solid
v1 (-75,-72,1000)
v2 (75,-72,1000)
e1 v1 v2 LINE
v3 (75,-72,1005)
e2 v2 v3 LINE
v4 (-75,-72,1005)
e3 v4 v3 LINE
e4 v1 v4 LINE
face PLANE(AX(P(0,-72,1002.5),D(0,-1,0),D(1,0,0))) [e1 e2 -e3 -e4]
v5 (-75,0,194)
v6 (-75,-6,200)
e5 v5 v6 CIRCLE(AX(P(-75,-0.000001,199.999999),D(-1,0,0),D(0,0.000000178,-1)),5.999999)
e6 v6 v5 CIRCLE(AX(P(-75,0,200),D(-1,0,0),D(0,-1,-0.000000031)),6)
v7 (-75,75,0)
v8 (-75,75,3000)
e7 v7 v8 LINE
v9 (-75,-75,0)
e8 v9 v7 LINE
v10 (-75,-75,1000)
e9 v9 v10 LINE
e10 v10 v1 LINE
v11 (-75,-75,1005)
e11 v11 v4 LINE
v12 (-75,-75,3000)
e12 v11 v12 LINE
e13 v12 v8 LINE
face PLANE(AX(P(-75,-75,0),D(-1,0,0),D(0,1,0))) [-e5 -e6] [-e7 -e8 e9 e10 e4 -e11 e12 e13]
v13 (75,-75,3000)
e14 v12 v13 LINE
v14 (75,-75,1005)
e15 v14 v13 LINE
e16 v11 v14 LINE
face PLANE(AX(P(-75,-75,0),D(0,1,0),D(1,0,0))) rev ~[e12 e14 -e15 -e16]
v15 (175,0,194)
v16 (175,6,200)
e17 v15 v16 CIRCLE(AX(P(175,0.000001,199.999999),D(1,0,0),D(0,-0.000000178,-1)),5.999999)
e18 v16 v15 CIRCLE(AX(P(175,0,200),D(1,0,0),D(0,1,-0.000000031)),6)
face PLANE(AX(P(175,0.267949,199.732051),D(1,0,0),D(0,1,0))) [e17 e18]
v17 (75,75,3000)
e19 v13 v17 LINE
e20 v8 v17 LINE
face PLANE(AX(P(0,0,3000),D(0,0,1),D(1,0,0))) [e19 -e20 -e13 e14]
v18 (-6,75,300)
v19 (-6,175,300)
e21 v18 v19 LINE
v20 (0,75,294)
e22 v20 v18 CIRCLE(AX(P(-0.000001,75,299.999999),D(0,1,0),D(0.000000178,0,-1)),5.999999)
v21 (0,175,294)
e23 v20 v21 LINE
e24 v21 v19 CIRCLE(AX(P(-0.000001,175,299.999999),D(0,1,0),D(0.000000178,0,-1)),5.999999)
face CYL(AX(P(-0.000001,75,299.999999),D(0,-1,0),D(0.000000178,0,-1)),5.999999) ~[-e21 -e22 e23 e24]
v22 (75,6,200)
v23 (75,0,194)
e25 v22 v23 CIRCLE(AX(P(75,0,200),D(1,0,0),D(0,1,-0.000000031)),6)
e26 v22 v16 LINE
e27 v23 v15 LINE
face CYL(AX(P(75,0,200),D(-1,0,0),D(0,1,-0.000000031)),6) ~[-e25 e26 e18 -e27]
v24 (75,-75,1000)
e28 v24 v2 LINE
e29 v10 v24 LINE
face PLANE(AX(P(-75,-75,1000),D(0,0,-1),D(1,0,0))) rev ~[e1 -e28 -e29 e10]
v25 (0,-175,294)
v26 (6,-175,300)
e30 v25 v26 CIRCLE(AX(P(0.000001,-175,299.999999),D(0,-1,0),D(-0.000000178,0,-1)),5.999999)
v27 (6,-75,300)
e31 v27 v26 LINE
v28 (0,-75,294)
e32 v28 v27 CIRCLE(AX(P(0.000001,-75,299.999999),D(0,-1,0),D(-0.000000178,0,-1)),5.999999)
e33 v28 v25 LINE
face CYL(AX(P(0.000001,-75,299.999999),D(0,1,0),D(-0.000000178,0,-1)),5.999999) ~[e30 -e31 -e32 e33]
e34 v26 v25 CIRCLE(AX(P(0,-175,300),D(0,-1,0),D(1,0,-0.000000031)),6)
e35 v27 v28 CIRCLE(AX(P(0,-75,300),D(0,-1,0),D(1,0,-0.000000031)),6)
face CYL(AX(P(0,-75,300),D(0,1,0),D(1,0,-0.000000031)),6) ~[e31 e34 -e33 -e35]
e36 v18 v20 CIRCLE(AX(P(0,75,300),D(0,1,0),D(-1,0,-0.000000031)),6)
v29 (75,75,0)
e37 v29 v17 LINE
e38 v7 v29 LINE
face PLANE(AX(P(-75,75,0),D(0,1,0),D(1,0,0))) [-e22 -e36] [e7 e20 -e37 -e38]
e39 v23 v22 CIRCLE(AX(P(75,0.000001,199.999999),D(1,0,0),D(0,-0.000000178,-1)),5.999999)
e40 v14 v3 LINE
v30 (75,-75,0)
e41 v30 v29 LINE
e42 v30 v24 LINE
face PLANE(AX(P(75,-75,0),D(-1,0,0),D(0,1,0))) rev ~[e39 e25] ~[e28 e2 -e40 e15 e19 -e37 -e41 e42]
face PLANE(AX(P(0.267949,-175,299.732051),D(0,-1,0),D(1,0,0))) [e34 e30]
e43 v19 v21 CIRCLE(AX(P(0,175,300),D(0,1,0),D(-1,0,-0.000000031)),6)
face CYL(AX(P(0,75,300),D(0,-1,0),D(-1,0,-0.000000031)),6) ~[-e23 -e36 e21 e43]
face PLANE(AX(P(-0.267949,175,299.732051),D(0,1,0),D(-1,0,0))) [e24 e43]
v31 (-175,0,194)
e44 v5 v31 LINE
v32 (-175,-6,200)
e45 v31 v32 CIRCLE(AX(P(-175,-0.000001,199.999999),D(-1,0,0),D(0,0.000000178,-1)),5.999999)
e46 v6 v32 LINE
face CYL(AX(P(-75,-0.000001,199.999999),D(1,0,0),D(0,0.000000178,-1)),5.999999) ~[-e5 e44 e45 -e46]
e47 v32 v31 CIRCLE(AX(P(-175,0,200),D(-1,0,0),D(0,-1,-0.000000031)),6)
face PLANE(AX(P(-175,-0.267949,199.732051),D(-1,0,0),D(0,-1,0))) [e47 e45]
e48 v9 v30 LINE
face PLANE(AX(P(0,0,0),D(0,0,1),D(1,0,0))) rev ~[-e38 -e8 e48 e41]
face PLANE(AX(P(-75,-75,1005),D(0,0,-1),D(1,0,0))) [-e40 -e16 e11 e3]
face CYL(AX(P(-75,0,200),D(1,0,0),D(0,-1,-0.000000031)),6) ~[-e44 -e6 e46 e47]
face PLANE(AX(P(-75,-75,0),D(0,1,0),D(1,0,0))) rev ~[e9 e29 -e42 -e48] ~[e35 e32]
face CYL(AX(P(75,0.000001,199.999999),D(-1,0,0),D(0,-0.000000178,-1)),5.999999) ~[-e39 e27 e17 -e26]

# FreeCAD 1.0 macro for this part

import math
import FreeCAD as App
import Part
import Sketcher

doc = App.newDocument("Part")
body = doc.addObject("PartDesign::Body", "Body")

# Sketch on XY plane
sketch1 = doc.addObject("Sketcher::SketchObject", "Sketch")
body.addObject(sketch1)
sketch1.AttachmentSupport = (doc.XY_Plane, [""])
sketch1.MapMode = "FlatFace"
sketch1.addGeometry([
    Part.LineSegment(App.Vector(-75, 75, 0), App.Vector(-75, -75, 0)),
    Part.LineSegment(App.Vector(-75, -75, 0), App.Vector(75, -75, 0)),
    Part.LineSegment(App.Vector(75, -75, 0), App.Vector(75, 75, 0)),
    Part.LineSegment(App.Vector(75, 75, 0), App.Vector(-75, 75, 0)),
], False)
sketch1.addConstraint([
    Sketcher.Constraint("Coincident", 0, 2, 1, 1),
    Sketcher.Constraint("Coincident", 1, 2, 2, 1),
    Sketcher.Constraint("Coincident", 2, 2, 3, 1),
    Sketcher.Constraint("Coincident", 3, 2, 0, 1),
    Sketcher.Constraint("Vertical", 0),
    Sketcher.Constraint("Horizontal", 1),
    Sketcher.Constraint("Vertical", 2),
    Sketcher.Constraint("Horizontal", 3),
    Sketcher.Constraint("Symmetric", 0, 2, 2, 2, -1, 1),
    Sketcher.Constraint("Equal", 3, 0),
    Sketcher.Constraint("DistanceX", 1, 1, 1, 2, 150.0),
])
pad1 = doc.addObject("PartDesign::Pad", "Pad")
body.addObject(pad1)
pad1.Profile = sketch1
pad1.Length = 3000

# Sketch on XZ plane
sketch2 = doc.addObject("Sketcher::SketchObject", "Sketch001")
body.addObject(sketch2)
sketch2.AttachmentSupport = (doc.XZ_Plane, [""])
sketch2.MapMode = "FlatFace"
sketch2.AttachmentOffset = App.Placement(App.Vector(0, 0, 75), App.Rotation())
sketch2.addGeometry([
    Part.ArcOfCircle(Part.Circle(App.Vector(0.000001, 299.999999, 0), App.Vector(0, 0, 1), 5.999999), math.radians(-90.00001), math.radians(0.00001)),
    Part.ArcOfCircle(Part.Circle(App.Vector(0, 300, 0), App.Vector(0, 0, 1), 6), math.radians(-0.000002), math.radians(270.000002)),
], False)
sketch2.addConstraint([
    Sketcher.Constraint("Tangent", 0, 1, 1, 2),
    Sketcher.Constraint("Coincident", 1, 1, 0, 2),
    Sketcher.Constraint("PointOnObject", 0, 3, -2),
    Sketcher.Constraint("PointOnObject", 0, 1, -2),
    Sketcher.Constraint("Horizontal", 0, 3, 1, 1),
    Sketcher.Constraint("Radius", 0, 5.999999),
    Sketcher.Constraint("DistanceY", -1, 1, 0, 3, 299.999999),
])
pad2 = doc.addObject("PartDesign::Pad", "Pad001")
body.addObject(pad2)
pad2.Profile = sketch2
pad2.Length = 100

# Sketch on XZ plane
sketch3 = doc.addObject("Sketcher::SketchObject", "Sketch002")
body.addObject(sketch3)
sketch3.AttachmentSupport = (doc.XZ_Plane, [""])
sketch3.MapMode = "FlatFace"
sketch3.AttachmentOffset = App.Placement(App.Vector(0, 0, -75), App.Rotation())
sketch3.addGeometry([
    Part.ArcOfCircle(Part.Circle(App.Vector(-0.000001, 299.999999, 0), App.Vector(0, 0, 1), 5.999999), math.radians(179.99999), math.radians(270.00001)),
    Part.ArcOfCircle(Part.Circle(App.Vector(0, 300, 0), App.Vector(0, 0, 1), 6), math.radians(-90.000002), math.radians(180.000002)),
], False)
sketch3.addConstraint([
    Sketcher.Constraint("Tangent", 0, 1, 1, 2),
    Sketcher.Constraint("Coincident", 1, 1, 0, 2),
    Sketcher.Constraint("PointOnObject", 0, 3, -2),
    Sketcher.Constraint("PointOnObject", 1, 1, -2),
    Sketcher.Constraint("Horizontal", 1, 3, 0, 1),
    Sketcher.Constraint("Radius", 0, 5.999999),
    Sketcher.Constraint("DistanceY", -1, 1, 0, 3, 299.999999),
])
pad3 = doc.addObject("PartDesign::Pad", "Pad002")
body.addObject(pad3)
pad3.Profile = sketch3
pad3.Length = 100
pad3.Reversed = True

# Sketch on YZ plane
sketch4 = doc.addObject("Sketcher::SketchObject", "Sketch003")
body.addObject(sketch4)
sketch4.AttachmentSupport = (doc.YZ_Plane, [""])
sketch4.MapMode = "FlatFace"
sketch4.AttachmentOffset = App.Placement(App.Vector(0, 0, -75), App.Rotation())
sketch4.addGeometry([
    Part.ArcOfCircle(Part.Circle(App.Vector(-0.000001, 199.999999, 0), App.Vector(0, 0, 1), 5.999999), math.radians(179.99999), math.radians(270.00001)),
    Part.ArcOfCircle(Part.Circle(App.Vector(0, 200, 0), App.Vector(0, 0, 1), 6), math.radians(-90.000002), math.radians(180.000002)),
], False)
sketch4.addConstraint([
    Sketcher.Constraint("Tangent", 0, 1, 1, 2),
    Sketcher.Constraint("Coincident", 1, 1, 0, 2),
    Sketcher.Constraint("PointOnObject", 0, 3, -2),
    Sketcher.Constraint("PointOnObject", 1, 1, -2),
    Sketcher.Constraint("Horizontal", 1, 3, 0, 1),
    Sketcher.Constraint("Radius", 0, 5.999999),
    Sketcher.Constraint("DistanceY", -1, 1, 0, 3, 199.999999),
])
pad4 = doc.addObject("PartDesign::Pad", "Pad003")
body.addObject(pad4)
pad4.Profile = sketch4
pad4.Length = 100
pad4.Reversed = True

# Sketch on YZ plane
sketch5 = doc.addObject("Sketcher::SketchObject", "Sketch004")
body.addObject(sketch5)
sketch5.AttachmentSupport = (doc.YZ_Plane, [""])
sketch5.MapMode = "FlatFace"
sketch5.AttachmentOffset = App.Placement(App.Vector(0, 0, 75), App.Rotation())
sketch5.addGeometry([
    Part.ArcOfCircle(Part.Circle(App.Vector(0.000001, 199.999999, 0), App.Vector(0, 0, 1), 5.999999), math.radians(-90.00001), math.radians(0.00001)),
    Part.ArcOfCircle(Part.Circle(App.Vector(0, 200, 0), App.Vector(0, 0, 1), 6), math.radians(-0.000002), math.radians(270.000002)),
], False)
sketch5.addConstraint([
    Sketcher.Constraint("Tangent", 0, 1, 1, 2),
    Sketcher.Constraint("Coincident", 1, 1, 0, 2),
    Sketcher.Constraint("PointOnObject", 0, 3, -2),
    Sketcher.Constraint("PointOnObject", 0, 1, -2),
    Sketcher.Constraint("Horizontal", 0, 3, 1, 1),
    Sketcher.Constraint("Radius", 0, 5.999999),
    Sketcher.Constraint("DistanceY", -1, 1, 0, 3, 199.999999),
])
pad5 = doc.addObject("PartDesign::Pad", "Pad004")
body.addObject(pad5)
pad5.Profile = sketch5
pad5.Length = 100

# Sketch on XZ plane
sketch6 = doc.addObject("Sketcher::SketchObject", "Sketch005")
body.addObject(sketch6)
sketch6.AttachmentSupport = (doc.XZ_Plane, [""])
sketch6.MapMode = "FlatFace"
sketch6.AttachmentOffset = App.Placement(App.Vector(0, 0, 75), App.Rotation())
sketch6.addGeometry([
    Part.LineSegment(App.Vector(-75, 1005, 0), App.Vector(-75, 1000, 0)),
    Part.LineSegment(App.Vector(-75, 1000, 0), App.Vector(75, 1000, 0)),
    Part.LineSegment(App.Vector(75, 1000, 0), App.Vector(75, 1005, 0)),
    Part.LineSegment(App.Vector(75, 1005, 0), App.Vector(-75, 1005, 0)),
], False)
sketch6.addConstraint([
    Sketcher.Constraint("Coincident", 0, 2, 1, 1),
    Sketcher.Constraint("Coincident", 1, 2, 2, 1),
    Sketcher.Constraint("Coincident", 2, 2, 3, 1),
    Sketcher.Constraint("Coincident", 3, 2, 0, 1),
    Sketcher.Constraint("Vertical", 0),
    Sketcher.Constraint("Horizontal", 1),
    Sketcher.Constraint("Vertical", 2),
    Sketcher.Constraint("Horizontal", 3),
    Sketcher.Constraint("DistanceX", 1, 1, 1, 2, 150.0),
    Sketcher.Constraint("DistanceY", 0, 2, 0, 1, 5.0),
    Sketcher.Constraint("DistanceX", 0, 2, -1, 1, 75.0),
    Sketcher.Constraint("DistanceY", -1, 1, 0, 2, 1000.0),
])
pocket1 = doc.addObject("PartDesign::Pocket", "Pocket")
body.addObject(pocket1)
pocket1.Profile = sketch6
pocket1.Length = 3

doc.recompute()
